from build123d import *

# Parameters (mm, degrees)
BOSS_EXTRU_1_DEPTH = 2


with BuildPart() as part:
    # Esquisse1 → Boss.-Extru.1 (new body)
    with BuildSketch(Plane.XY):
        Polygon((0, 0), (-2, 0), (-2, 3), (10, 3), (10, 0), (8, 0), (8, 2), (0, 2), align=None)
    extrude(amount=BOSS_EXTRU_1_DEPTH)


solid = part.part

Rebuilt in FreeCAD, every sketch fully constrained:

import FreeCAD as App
import Part
import Sketcher
from FreeCAD import Vector


def add_polygon(sketch, points):
    """Adds a closed chain of lines whose ends are joined by coincident constraints."""
    first, n = sketch.GeometryCount, len(points)
    for a, b in zip(points, points[1:] + points[:1]):
        sketch.addGeometry(Part.LineSegment(App.Vector(*a, 0), App.Vector(*b, 0)), False)
    for i in range(n):
        sketch.addConstraint(Sketcher.Constraint("Coincident", first + i, 2, first + (i + 1) % n, 1))

doc = App.newDocument("Part")
body = doc.addObject("PartDesign::Body", "Body")

sketch1 = doc.addObject("Sketcher::SketchObject", "Sketch")
body.addObject(sketch1)
sketch1.AttachmentSupport = (doc.XY_Plane, [""])
sketch1.MapMode = "FlatFace"
add_polygon(sketch1, [(-2, 0), (0, 0), (0, 2), (8, 2), (8, 0), (10, 0), (10, 3), (-2, 3)])
sketch1.addConstraint(Sketcher.Constraint("Horizontal", 0))
sketch1.addConstraint(Sketcher.Constraint("Vertical", 1))
sketch1.addConstraint(Sketcher.Constraint("Horizontal", 2))
sketch1.addConstraint(Sketcher.Constraint("Vertical", 3))
sketch1.addConstraint(Sketcher.Constraint("Horizontal", 4))
sketch1.addConstraint(Sketcher.Constraint("Vertical", 5))
sketch1.addConstraint(Sketcher.Constraint("Horizontal", 6))
sketch1.addConstraint(Sketcher.Constraint("Vertical", 7))
sketch1.addConstraint(Sketcher.Constraint("Coincident", 0, 2, -1, 1))
sketch1.addConstraint(Sketcher.Constraint("PointOnObject", 3, 2, -1))
sketch1.addConstraint(Sketcher.Constraint("Equal", 0, 4))
sketch1.addConstraint(Sketcher.Constraint("Equal", 4, 1))
sketch1.addConstraint(Sketcher.Constraint("DistanceX", 0, 1, 0, 2, 2.0))
sketch1.addConstraint(Sketcher.Constraint("DistanceX", 2, 1, 2, 2, 8.0))
sketch1.addConstraint(Sketcher.Constraint("DistanceY", 5, 1, 5, 2, 3.0))
pad1 = doc.addObject("PartDesign::Pad", "Pad")
body.addObject(pad1)
pad1.Profile = sketch1
pad1.Length = 2

doc.recompute()
